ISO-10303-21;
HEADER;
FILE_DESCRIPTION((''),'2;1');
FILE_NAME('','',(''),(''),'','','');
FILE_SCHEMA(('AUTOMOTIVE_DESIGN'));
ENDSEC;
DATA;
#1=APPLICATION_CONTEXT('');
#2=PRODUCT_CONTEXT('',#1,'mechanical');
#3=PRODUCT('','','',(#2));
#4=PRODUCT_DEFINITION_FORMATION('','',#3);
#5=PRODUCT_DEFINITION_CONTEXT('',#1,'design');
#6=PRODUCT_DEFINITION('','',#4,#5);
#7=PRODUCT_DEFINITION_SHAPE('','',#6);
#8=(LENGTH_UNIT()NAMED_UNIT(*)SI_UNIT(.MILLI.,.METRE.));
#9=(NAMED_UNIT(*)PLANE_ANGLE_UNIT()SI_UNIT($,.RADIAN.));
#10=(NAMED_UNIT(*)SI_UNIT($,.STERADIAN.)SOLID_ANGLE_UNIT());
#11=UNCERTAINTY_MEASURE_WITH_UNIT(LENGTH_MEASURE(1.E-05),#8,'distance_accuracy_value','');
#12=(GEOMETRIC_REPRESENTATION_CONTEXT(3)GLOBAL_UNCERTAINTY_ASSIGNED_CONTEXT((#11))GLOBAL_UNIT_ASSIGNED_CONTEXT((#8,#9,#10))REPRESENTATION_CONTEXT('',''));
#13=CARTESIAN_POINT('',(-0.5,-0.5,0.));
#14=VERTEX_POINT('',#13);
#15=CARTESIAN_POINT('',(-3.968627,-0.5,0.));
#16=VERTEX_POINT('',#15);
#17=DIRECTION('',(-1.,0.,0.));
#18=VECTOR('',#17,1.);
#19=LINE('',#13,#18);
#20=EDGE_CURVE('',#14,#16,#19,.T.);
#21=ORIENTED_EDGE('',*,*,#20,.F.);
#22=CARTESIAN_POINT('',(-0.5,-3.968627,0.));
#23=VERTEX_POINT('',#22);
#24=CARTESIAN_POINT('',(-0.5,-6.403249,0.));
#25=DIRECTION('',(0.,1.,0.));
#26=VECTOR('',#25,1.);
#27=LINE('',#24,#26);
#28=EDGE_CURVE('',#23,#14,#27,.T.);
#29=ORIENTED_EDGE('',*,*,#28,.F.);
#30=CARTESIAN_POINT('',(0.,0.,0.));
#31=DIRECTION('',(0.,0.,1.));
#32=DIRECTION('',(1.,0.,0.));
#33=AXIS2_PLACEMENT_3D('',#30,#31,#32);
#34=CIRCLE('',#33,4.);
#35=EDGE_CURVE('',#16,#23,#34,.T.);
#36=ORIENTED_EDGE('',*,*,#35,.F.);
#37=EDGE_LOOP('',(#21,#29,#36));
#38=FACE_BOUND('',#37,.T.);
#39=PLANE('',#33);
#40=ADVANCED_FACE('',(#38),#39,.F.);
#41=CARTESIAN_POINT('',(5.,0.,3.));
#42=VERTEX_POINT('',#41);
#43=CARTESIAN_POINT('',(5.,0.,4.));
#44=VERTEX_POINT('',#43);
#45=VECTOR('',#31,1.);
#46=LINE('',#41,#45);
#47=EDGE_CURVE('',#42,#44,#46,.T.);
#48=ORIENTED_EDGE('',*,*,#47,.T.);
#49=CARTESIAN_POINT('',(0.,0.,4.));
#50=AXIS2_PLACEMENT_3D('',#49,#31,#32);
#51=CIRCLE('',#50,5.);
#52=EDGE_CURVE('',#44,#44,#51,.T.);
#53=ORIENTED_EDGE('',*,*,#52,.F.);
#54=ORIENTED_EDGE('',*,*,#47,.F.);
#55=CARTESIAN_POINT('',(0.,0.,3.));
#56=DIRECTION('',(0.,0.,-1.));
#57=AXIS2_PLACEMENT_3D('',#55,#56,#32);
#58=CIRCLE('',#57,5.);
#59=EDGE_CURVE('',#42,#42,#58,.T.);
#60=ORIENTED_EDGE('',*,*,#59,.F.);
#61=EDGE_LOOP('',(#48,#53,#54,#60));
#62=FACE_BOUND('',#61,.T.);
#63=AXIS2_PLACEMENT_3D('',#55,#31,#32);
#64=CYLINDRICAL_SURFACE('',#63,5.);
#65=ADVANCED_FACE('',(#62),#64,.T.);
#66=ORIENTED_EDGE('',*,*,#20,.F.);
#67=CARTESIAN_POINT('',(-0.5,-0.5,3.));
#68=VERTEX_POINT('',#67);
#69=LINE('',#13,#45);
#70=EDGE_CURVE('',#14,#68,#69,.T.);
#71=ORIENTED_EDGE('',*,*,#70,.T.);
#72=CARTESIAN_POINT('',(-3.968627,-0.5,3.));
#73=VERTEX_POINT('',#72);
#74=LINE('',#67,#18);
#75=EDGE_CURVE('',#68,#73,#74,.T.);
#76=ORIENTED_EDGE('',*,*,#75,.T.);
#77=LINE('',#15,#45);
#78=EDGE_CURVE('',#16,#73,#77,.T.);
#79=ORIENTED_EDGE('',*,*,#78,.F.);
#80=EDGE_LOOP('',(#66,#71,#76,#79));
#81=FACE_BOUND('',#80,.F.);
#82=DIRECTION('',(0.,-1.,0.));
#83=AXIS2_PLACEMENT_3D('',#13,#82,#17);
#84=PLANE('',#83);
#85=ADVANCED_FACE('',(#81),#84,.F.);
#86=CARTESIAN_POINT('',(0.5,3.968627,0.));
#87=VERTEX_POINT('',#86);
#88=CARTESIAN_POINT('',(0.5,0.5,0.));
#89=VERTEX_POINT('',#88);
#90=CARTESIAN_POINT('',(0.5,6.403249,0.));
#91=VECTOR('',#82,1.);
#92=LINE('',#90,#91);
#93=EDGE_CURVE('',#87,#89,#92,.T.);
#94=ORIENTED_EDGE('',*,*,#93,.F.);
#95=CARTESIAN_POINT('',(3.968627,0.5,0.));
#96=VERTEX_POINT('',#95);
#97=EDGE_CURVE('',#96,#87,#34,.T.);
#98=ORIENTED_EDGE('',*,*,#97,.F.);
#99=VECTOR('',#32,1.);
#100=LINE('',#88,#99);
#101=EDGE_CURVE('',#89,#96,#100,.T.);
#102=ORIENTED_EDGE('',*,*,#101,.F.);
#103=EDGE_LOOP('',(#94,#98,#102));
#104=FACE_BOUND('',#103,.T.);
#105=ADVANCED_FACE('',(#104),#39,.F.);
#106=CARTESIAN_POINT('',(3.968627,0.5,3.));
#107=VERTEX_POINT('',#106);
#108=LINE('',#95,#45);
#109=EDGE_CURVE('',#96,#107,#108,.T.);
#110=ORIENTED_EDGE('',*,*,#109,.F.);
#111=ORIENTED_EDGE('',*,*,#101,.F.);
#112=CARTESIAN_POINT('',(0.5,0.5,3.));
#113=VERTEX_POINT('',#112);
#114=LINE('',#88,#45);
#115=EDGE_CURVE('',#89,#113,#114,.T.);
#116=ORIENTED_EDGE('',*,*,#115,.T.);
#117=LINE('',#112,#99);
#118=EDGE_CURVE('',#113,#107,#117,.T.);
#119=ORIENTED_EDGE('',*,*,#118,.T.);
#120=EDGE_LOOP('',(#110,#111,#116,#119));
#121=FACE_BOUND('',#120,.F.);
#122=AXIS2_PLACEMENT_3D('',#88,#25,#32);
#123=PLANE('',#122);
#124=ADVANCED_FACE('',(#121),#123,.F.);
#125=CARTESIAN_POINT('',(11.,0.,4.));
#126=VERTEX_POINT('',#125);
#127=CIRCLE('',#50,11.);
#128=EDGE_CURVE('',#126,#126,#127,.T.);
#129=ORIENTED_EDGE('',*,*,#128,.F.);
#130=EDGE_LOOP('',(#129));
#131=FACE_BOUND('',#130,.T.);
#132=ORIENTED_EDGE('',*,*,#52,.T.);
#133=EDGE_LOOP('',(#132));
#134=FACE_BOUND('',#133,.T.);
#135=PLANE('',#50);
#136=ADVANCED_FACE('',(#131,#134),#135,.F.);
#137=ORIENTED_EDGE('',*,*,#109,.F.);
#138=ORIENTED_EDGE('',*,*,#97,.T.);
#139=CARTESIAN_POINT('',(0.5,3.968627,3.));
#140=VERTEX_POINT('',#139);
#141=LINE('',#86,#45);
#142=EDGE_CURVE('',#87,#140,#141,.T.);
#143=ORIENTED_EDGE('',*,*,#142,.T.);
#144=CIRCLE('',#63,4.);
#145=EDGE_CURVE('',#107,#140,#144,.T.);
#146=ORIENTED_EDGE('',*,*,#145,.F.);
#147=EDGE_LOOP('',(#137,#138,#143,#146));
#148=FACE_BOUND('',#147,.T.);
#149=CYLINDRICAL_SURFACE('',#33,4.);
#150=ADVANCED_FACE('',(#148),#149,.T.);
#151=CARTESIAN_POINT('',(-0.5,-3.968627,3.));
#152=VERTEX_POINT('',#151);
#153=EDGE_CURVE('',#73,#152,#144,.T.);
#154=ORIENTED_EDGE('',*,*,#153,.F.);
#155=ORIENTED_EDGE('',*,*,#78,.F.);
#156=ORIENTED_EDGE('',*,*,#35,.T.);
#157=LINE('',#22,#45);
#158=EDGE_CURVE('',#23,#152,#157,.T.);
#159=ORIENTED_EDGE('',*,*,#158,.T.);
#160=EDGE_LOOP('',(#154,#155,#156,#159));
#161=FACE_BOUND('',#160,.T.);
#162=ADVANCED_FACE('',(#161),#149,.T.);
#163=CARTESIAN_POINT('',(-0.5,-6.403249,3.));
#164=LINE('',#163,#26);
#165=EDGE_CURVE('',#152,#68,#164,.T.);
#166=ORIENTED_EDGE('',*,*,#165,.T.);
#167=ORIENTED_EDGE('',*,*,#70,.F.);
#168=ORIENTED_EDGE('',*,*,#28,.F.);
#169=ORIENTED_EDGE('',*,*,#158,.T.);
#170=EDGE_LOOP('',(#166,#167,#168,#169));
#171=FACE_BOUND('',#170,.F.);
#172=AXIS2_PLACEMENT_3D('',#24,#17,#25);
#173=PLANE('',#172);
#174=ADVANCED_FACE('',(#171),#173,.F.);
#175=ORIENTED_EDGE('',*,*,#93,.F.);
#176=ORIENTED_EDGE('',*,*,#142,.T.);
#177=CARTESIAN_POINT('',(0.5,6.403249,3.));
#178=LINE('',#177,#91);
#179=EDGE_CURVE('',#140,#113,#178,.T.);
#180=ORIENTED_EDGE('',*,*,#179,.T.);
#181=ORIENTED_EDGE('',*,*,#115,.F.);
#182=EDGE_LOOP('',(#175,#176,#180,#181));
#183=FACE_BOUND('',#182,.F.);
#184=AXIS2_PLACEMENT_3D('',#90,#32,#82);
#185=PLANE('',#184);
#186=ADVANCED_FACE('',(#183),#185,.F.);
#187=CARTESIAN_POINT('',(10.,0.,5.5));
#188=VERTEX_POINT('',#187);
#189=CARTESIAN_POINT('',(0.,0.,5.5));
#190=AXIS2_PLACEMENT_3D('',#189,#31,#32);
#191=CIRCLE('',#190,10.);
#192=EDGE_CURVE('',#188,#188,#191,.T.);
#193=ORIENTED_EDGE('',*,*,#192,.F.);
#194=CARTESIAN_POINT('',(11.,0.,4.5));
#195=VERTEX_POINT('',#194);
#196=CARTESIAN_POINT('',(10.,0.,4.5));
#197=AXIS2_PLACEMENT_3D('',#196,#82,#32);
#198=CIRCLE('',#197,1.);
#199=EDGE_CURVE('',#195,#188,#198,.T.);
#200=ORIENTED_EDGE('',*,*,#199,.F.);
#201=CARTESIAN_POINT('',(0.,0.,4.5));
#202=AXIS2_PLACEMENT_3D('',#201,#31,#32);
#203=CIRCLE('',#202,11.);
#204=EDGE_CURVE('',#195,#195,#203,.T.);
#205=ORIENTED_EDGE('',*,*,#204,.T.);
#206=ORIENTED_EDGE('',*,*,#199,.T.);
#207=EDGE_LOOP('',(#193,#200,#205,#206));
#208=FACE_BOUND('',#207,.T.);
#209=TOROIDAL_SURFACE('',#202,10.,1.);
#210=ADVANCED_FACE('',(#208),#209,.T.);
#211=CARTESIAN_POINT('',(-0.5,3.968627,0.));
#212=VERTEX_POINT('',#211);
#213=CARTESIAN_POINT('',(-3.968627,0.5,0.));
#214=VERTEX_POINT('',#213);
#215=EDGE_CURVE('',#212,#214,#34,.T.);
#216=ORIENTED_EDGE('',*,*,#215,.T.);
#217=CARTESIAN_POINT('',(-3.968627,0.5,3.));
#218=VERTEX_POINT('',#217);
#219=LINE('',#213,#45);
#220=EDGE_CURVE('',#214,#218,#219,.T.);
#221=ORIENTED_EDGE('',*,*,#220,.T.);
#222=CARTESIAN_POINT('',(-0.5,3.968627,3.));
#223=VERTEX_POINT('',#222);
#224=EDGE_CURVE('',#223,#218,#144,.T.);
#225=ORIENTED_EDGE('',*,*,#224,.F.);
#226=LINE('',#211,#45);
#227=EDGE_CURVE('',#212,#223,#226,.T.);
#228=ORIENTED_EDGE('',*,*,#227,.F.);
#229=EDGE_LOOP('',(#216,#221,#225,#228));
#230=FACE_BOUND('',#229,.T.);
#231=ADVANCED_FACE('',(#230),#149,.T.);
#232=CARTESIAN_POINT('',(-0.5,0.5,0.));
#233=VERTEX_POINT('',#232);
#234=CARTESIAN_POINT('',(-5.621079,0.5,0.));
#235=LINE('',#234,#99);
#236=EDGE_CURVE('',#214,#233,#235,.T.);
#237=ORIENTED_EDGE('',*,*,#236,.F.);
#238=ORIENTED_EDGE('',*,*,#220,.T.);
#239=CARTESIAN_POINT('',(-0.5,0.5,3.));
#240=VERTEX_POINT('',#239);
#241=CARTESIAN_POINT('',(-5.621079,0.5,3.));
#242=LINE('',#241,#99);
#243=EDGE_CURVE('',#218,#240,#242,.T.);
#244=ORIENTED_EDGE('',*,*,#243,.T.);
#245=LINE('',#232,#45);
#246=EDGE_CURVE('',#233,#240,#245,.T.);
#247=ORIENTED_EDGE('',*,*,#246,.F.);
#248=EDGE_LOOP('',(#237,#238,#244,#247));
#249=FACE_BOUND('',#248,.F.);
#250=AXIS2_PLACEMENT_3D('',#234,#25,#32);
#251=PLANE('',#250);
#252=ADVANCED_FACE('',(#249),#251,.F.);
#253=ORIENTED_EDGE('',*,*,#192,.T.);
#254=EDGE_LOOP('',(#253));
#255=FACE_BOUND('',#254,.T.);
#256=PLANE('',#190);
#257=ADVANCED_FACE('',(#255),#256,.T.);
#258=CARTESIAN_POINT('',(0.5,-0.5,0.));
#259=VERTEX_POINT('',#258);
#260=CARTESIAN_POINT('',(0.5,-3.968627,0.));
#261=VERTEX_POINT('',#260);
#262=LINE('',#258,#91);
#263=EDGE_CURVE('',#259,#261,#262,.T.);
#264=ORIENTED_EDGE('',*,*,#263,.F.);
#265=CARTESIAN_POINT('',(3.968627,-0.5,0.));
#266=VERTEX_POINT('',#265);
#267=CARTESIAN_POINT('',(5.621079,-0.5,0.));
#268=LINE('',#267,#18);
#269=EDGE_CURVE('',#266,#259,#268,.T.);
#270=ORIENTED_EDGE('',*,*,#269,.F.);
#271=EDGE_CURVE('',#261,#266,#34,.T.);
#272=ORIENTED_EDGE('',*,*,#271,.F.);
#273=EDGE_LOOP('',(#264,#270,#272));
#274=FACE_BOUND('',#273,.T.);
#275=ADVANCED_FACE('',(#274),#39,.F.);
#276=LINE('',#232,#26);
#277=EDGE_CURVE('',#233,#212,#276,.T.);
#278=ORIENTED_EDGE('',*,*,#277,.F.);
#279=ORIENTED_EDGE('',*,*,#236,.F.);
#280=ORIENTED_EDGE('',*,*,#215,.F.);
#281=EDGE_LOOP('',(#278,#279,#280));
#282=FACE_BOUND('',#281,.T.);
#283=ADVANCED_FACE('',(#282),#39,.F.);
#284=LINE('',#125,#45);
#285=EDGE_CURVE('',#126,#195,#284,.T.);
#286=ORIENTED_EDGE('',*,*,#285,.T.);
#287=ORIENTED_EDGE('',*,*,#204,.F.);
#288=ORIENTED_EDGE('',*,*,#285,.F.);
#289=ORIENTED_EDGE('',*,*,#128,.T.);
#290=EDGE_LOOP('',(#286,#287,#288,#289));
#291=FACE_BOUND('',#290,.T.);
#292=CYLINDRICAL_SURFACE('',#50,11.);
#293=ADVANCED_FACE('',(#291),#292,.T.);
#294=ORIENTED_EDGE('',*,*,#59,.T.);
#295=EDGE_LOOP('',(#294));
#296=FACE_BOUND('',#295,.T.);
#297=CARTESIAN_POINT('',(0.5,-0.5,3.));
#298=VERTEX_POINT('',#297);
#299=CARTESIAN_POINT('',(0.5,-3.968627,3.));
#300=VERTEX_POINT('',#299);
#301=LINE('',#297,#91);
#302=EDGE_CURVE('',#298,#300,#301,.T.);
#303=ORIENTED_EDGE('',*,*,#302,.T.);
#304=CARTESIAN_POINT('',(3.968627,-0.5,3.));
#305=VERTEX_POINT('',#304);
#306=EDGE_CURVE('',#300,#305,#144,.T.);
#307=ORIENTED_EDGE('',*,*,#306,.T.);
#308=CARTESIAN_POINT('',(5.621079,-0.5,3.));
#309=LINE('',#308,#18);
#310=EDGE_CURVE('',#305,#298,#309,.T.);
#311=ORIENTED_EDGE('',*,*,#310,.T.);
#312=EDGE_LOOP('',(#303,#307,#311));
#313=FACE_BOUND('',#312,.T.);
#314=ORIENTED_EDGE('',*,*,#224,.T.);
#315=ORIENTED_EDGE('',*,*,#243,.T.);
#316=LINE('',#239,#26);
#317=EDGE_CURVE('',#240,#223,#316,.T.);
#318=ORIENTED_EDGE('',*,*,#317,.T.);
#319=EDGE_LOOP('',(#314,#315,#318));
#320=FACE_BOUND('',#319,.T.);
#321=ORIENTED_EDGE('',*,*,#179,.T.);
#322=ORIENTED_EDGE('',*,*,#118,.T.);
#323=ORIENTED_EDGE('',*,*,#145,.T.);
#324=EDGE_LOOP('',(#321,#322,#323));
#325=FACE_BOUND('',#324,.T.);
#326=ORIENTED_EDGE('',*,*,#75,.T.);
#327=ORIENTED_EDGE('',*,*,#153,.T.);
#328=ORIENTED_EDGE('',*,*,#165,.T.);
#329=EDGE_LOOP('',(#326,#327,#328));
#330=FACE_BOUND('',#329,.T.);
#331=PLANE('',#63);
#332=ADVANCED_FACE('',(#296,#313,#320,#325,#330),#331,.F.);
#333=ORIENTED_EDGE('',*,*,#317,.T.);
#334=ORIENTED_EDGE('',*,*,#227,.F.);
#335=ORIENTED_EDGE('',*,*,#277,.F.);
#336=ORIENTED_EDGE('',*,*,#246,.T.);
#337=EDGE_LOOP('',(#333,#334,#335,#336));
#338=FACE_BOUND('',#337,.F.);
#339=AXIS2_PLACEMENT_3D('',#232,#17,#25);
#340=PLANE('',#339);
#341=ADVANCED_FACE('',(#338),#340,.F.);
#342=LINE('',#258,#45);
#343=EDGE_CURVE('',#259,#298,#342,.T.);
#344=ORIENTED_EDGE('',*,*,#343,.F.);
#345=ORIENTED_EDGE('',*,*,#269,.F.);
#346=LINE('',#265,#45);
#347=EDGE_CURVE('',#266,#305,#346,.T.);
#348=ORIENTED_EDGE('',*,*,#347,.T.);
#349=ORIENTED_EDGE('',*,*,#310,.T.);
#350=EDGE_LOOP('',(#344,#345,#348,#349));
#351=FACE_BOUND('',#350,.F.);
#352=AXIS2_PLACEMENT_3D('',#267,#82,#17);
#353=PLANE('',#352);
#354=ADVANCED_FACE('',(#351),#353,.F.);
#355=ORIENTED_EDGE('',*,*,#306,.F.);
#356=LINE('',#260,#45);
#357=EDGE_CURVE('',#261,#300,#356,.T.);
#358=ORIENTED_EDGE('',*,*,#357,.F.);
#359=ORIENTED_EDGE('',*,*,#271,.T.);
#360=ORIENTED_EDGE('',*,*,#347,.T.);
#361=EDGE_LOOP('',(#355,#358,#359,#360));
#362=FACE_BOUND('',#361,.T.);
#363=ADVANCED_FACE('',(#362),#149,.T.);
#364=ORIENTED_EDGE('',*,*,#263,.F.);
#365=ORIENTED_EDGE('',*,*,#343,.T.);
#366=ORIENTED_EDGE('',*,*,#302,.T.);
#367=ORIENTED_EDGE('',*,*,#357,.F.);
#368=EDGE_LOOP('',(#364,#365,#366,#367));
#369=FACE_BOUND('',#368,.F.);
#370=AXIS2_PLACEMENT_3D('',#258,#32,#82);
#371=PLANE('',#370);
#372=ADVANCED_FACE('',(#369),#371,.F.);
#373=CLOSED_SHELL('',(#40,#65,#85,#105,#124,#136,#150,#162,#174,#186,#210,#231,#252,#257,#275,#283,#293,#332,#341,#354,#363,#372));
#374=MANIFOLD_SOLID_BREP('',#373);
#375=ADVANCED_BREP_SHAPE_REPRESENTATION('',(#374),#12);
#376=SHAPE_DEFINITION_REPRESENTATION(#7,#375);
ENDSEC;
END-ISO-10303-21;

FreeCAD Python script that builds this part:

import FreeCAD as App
import Part
import Sketcher
Q = App.Units.Quantity


def edges_at(feature, points):
    """Names of the edges that pass closest to the given points."""
    edges = feature.Shape.Edges
    near = lambda p: min(range(len(edges)), key=lambda i: edges[i].distToShape(Part.Vertex(*p))[0])
    return sorted({f"Edge{near(p) + 1}" for p in points})

doc = App.newDocument("Part")
params = doc.addObject("Spreadsheet::Sheet", "Params")
for row, (alias, value) in enumerate([
    ("sketch1_width", "4 mm"),
    ("sketch1_width2", "1 mm"),
    ("sketch1_width3", "6 mm"),
    ("sketch1_height", "3 mm"),
    ("sketch1_height2", "5.5 mm"),
    ("revolution_angle", "360 deg"),
    ("sketch2_width", "1 mm"),
    ("pocket1_length", "3 mm"),
    ("fillet_radius", "1 mm"),
], start=1):
    params.set(f"A{row}", alias)
    params.set(f"B{row}", "=" + value)
    params.setAlias(f"B{row}", alias)

body = doc.addObject("PartDesign::Body", "Body")

# Sketch on XZ plane
sketch1 = body.newObject("Sketcher::SketchObject", "Sketch")
sketch1.AttachmentSupport = (doc.getObject("XZ_Plane"), [""])
sketch1.MapMode = "FlatFace"
sketch1.addGeometry([
    Part.LineSegment(App.Vector(0, 5.5, 0), App.Vector(0, 0, 0)),  # 0
    Part.LineSegment(App.Vector(0, 0, 0), App.Vector(4, 0, 0)),  # 1
    Part.LineSegment(App.Vector(4, 0, 0), App.Vector(4, 3, 0)),  # 2
    Part.LineSegment(App.Vector(4, 3, 0), App.Vector(5, 3, 0)),  # 3
    Part.LineSegment(App.Vector(5, 3, 0), App.Vector(5, 4, 0)),  # 4
    Part.LineSegment(App.Vector(5, 4, 0), App.Vector(11, 4, 0)),  # 5
    Part.LineSegment(App.Vector(11, 4, 0), App.Vector(11, 5.5, 0)),  # 6
    Part.LineSegment(App.Vector(11, 5.5, 0), App.Vector(0, 5.5, 0)),  # 7
], False)
sketch1.addConstraint([
    Sketcher.Constraint("Coincident", 0, 2, 1, 1),
    Sketcher.Constraint("Coincident", 1, 2, 2, 1),
    Sketcher.Constraint("Coincident", 2, 2, 3, 1),
    Sketcher.Constraint("Coincident", 3, 2, 4, 1),
    Sketcher.Constraint("Coincident", 4, 2, 5, 1),
    Sketcher.Constraint("Coincident", 5, 2, 6, 1),
    Sketcher.Constraint("Coincident", 6, 2, 7, 1),
    Sketcher.Constraint("Coincident", 7, 2, 0, 1),
    Sketcher.Constraint("Vertical", 0),
    Sketcher.Constraint("Horizontal", 1),
    Sketcher.Constraint("Vertical", 2),
    Sketcher.Constraint("Horizontal", 3),
    Sketcher.Constraint("Vertical", 4),
    Sketcher.Constraint("Horizontal", 5),
    Sketcher.Constraint("Vertical", 6),
    Sketcher.Constraint("Horizontal", 7),
    Sketcher.Constraint("Coincident", 0, 2, -1, 1),
    Sketcher.Constraint("Equal", 3, 4),
    Sketcher.Constraint("DistanceX", 1, 1, 1, 2, Q("4 mm")),
    Sketcher.Constraint("DistanceX", 3, 1, 3, 2, Q("1 mm")),
    Sketcher.Constraint("DistanceX", 5, 1, 5, 2, Q("6 mm")),
    Sketcher.Constraint("DistanceY", 2, 1, 2, 2, Q("3 mm")),
    Sketcher.Constraint("DistanceY", 0, 2, 0, 1, Q("5.5 mm")),
])
sketch1.setExpression("Constraints[18]", "Params.sketch1_width")
sketch1.setExpression("Constraints[19]", "Params.sketch1_width2")
sketch1.setExpression("Constraints[20]", "Params.sketch1_width3")
sketch1.setExpression("Constraints[21]", "Params.sketch1_height")
sketch1.setExpression("Constraints[22]", "Params.sketch1_height2")
revolution = body.newObject("PartDesign::Revolution", "Revolution")
revolution.Profile = sketch1
revolution.ReferenceAxis = (sketch1, ["V_Axis"])
revolution.setExpression("Angle", "Params.revolution_angle")

# Sketch on XY plane
sketch2 = body.newObject("Sketcher::SketchObject", "Sketch001")
sketch2.AttachmentSupport = (doc.getObject("XY_Plane"), [""])
sketch2.MapMode = "FlatFace"
sketch2.addGeometry([
    Part.LineSegment(App.Vector(-0.5, 6.4, 0), App.Vector(0.5, 6.4, 0)),  # 0
    Part.LineSegment(App.Vector(0.5, 6.4, 0), App.Vector(0.5, 0.5, 0)),  # 1
    Part.LineSegment(App.Vector(0.5, 0.5, 0), App.Vector(5.6, 0.5, 0)),  # 2
    Part.LineSegment(App.Vector(5.6, 0.5, 0), App.Vector(5.6, -0.5, 0)),  # 3
    Part.LineSegment(App.Vector(5.6, -0.5, 0), App.Vector(0.5, -0.5, 0)),  # 4
    Part.LineSegment(App.Vector(0.5, -0.5, 0), App.Vector(0.5, -6.4, 0)),  # 5
    Part.LineSegment(App.Vector(0.5, -6.4, 0), App.Vector(-0.5, -6.4, 0)),  # 6
    Part.LineSegment(App.Vector(-0.5, -6.4, 0), App.Vector(-0.5, -0.5, 0)),  # 7
    Part.LineSegment(App.Vector(-0.5, -0.5, 0), App.Vector(-5.6, -0.5, 0)),  # 8
    Part.LineSegment(App.Vector(-5.6, -0.5, 0), App.Vector(-5.6, 0.5, 0)),  # 9
    Part.LineSegment(App.Vector(-5.6, 0.5, 0), App.Vector(-0.5, 0.5, 0)),  # 10
    Part.LineSegment(App.Vector(-0.5, 0.5, 0), App.Vector(-0.5, 6.4, 0)),  # 11
], False)
sketch2.addConstraint([
    Sketcher.Constraint("Coincident", 0, 2, 1, 1),
    Sketcher.Constraint("Coincident", 1, 2, 2, 1),
    Sketcher.Constraint("Coincident", 2, 2, 3, 1),
    Sketcher.Constraint("Coincident", 3, 2, 4, 1),
    Sketcher.Constraint("Coincident", 4, 2, 5, 1),
    Sketcher.Constraint("Coincident", 5, 2, 6, 1),
    Sketcher.Constraint("Coincident", 6, 2, 7, 1),
    Sketcher.Constraint("Coincident", 7, 2, 8, 1),
    Sketcher.Constraint("Coincident", 8, 2, 9, 1),
    Sketcher.Constraint("Coincident", 9, 2, 10, 1),
    Sketcher.Constraint("Coincident", 10, 2, 11, 1),
    Sketcher.Constraint("Coincident", 11, 2, 0, 1),
    Sketcher.Constraint("Horizontal", 0),
    Sketcher.Constraint("Vertical", 1),
    Sketcher.Constraint("Horizontal", 2),
    Sketcher.Constraint("Vertical", 3),
    Sketcher.Constraint("Horizontal", 4),
    Sketcher.Constraint("Vertical", 5),
    Sketcher.Constraint("Horizontal", 6),
    Sketcher.Constraint("Vertical", 7),
    Sketcher.Constraint("Horizontal", 8),
    Sketcher.Constraint("Vertical", 9),
    Sketcher.Constraint("Horizontal", 10),
    Sketcher.Constraint("Vertical", 11),
    Sketcher.Constraint("Symmetric", 0, 2, 6, 2, -1, 1),
    Sketcher.Constraint("Symmetric", 2, 2, 8, 2, -1, 1),
    Sketcher.Constraint("Symmetric", 4, 2, 10, 2, -1, 1),
    Sketcher.Constraint("Symmetric", 4, 2, 7, 2, -2),
    Sketcher.Constraint("Equal", 6, 3),
    Sketcher.Constraint("DistanceX", 0, 1, 0, 2, Q("1 mm")),
    Sketcher.Constraint("DistanceX", 2, 1, 2, 2, Q("5.121079 mm")),
    Sketcher.Constraint("DistanceY", 1, 2, 1, 1, Q("5.903249 mm")),
])
sketch2.setExpression("Constraints[29]", "Params.sketch2_width")
pocket1 = body.newObject("PartDesign::Pocket", "Pocket")
pocket1.Profile = sketch2
pocket1.setExpression("Length", "Params.pocket1_length")
pocket1.Reversed = True
doc.recompute()

fillet = body.newObject("PartDesign::Fillet", "Fillet")
fillet.Base = (pocket1, edges_at(pocket1, [(-11, 0, 5.5)]))
fillet.setExpression("Radius", "Params.fillet_radius")

doc.recompute()
